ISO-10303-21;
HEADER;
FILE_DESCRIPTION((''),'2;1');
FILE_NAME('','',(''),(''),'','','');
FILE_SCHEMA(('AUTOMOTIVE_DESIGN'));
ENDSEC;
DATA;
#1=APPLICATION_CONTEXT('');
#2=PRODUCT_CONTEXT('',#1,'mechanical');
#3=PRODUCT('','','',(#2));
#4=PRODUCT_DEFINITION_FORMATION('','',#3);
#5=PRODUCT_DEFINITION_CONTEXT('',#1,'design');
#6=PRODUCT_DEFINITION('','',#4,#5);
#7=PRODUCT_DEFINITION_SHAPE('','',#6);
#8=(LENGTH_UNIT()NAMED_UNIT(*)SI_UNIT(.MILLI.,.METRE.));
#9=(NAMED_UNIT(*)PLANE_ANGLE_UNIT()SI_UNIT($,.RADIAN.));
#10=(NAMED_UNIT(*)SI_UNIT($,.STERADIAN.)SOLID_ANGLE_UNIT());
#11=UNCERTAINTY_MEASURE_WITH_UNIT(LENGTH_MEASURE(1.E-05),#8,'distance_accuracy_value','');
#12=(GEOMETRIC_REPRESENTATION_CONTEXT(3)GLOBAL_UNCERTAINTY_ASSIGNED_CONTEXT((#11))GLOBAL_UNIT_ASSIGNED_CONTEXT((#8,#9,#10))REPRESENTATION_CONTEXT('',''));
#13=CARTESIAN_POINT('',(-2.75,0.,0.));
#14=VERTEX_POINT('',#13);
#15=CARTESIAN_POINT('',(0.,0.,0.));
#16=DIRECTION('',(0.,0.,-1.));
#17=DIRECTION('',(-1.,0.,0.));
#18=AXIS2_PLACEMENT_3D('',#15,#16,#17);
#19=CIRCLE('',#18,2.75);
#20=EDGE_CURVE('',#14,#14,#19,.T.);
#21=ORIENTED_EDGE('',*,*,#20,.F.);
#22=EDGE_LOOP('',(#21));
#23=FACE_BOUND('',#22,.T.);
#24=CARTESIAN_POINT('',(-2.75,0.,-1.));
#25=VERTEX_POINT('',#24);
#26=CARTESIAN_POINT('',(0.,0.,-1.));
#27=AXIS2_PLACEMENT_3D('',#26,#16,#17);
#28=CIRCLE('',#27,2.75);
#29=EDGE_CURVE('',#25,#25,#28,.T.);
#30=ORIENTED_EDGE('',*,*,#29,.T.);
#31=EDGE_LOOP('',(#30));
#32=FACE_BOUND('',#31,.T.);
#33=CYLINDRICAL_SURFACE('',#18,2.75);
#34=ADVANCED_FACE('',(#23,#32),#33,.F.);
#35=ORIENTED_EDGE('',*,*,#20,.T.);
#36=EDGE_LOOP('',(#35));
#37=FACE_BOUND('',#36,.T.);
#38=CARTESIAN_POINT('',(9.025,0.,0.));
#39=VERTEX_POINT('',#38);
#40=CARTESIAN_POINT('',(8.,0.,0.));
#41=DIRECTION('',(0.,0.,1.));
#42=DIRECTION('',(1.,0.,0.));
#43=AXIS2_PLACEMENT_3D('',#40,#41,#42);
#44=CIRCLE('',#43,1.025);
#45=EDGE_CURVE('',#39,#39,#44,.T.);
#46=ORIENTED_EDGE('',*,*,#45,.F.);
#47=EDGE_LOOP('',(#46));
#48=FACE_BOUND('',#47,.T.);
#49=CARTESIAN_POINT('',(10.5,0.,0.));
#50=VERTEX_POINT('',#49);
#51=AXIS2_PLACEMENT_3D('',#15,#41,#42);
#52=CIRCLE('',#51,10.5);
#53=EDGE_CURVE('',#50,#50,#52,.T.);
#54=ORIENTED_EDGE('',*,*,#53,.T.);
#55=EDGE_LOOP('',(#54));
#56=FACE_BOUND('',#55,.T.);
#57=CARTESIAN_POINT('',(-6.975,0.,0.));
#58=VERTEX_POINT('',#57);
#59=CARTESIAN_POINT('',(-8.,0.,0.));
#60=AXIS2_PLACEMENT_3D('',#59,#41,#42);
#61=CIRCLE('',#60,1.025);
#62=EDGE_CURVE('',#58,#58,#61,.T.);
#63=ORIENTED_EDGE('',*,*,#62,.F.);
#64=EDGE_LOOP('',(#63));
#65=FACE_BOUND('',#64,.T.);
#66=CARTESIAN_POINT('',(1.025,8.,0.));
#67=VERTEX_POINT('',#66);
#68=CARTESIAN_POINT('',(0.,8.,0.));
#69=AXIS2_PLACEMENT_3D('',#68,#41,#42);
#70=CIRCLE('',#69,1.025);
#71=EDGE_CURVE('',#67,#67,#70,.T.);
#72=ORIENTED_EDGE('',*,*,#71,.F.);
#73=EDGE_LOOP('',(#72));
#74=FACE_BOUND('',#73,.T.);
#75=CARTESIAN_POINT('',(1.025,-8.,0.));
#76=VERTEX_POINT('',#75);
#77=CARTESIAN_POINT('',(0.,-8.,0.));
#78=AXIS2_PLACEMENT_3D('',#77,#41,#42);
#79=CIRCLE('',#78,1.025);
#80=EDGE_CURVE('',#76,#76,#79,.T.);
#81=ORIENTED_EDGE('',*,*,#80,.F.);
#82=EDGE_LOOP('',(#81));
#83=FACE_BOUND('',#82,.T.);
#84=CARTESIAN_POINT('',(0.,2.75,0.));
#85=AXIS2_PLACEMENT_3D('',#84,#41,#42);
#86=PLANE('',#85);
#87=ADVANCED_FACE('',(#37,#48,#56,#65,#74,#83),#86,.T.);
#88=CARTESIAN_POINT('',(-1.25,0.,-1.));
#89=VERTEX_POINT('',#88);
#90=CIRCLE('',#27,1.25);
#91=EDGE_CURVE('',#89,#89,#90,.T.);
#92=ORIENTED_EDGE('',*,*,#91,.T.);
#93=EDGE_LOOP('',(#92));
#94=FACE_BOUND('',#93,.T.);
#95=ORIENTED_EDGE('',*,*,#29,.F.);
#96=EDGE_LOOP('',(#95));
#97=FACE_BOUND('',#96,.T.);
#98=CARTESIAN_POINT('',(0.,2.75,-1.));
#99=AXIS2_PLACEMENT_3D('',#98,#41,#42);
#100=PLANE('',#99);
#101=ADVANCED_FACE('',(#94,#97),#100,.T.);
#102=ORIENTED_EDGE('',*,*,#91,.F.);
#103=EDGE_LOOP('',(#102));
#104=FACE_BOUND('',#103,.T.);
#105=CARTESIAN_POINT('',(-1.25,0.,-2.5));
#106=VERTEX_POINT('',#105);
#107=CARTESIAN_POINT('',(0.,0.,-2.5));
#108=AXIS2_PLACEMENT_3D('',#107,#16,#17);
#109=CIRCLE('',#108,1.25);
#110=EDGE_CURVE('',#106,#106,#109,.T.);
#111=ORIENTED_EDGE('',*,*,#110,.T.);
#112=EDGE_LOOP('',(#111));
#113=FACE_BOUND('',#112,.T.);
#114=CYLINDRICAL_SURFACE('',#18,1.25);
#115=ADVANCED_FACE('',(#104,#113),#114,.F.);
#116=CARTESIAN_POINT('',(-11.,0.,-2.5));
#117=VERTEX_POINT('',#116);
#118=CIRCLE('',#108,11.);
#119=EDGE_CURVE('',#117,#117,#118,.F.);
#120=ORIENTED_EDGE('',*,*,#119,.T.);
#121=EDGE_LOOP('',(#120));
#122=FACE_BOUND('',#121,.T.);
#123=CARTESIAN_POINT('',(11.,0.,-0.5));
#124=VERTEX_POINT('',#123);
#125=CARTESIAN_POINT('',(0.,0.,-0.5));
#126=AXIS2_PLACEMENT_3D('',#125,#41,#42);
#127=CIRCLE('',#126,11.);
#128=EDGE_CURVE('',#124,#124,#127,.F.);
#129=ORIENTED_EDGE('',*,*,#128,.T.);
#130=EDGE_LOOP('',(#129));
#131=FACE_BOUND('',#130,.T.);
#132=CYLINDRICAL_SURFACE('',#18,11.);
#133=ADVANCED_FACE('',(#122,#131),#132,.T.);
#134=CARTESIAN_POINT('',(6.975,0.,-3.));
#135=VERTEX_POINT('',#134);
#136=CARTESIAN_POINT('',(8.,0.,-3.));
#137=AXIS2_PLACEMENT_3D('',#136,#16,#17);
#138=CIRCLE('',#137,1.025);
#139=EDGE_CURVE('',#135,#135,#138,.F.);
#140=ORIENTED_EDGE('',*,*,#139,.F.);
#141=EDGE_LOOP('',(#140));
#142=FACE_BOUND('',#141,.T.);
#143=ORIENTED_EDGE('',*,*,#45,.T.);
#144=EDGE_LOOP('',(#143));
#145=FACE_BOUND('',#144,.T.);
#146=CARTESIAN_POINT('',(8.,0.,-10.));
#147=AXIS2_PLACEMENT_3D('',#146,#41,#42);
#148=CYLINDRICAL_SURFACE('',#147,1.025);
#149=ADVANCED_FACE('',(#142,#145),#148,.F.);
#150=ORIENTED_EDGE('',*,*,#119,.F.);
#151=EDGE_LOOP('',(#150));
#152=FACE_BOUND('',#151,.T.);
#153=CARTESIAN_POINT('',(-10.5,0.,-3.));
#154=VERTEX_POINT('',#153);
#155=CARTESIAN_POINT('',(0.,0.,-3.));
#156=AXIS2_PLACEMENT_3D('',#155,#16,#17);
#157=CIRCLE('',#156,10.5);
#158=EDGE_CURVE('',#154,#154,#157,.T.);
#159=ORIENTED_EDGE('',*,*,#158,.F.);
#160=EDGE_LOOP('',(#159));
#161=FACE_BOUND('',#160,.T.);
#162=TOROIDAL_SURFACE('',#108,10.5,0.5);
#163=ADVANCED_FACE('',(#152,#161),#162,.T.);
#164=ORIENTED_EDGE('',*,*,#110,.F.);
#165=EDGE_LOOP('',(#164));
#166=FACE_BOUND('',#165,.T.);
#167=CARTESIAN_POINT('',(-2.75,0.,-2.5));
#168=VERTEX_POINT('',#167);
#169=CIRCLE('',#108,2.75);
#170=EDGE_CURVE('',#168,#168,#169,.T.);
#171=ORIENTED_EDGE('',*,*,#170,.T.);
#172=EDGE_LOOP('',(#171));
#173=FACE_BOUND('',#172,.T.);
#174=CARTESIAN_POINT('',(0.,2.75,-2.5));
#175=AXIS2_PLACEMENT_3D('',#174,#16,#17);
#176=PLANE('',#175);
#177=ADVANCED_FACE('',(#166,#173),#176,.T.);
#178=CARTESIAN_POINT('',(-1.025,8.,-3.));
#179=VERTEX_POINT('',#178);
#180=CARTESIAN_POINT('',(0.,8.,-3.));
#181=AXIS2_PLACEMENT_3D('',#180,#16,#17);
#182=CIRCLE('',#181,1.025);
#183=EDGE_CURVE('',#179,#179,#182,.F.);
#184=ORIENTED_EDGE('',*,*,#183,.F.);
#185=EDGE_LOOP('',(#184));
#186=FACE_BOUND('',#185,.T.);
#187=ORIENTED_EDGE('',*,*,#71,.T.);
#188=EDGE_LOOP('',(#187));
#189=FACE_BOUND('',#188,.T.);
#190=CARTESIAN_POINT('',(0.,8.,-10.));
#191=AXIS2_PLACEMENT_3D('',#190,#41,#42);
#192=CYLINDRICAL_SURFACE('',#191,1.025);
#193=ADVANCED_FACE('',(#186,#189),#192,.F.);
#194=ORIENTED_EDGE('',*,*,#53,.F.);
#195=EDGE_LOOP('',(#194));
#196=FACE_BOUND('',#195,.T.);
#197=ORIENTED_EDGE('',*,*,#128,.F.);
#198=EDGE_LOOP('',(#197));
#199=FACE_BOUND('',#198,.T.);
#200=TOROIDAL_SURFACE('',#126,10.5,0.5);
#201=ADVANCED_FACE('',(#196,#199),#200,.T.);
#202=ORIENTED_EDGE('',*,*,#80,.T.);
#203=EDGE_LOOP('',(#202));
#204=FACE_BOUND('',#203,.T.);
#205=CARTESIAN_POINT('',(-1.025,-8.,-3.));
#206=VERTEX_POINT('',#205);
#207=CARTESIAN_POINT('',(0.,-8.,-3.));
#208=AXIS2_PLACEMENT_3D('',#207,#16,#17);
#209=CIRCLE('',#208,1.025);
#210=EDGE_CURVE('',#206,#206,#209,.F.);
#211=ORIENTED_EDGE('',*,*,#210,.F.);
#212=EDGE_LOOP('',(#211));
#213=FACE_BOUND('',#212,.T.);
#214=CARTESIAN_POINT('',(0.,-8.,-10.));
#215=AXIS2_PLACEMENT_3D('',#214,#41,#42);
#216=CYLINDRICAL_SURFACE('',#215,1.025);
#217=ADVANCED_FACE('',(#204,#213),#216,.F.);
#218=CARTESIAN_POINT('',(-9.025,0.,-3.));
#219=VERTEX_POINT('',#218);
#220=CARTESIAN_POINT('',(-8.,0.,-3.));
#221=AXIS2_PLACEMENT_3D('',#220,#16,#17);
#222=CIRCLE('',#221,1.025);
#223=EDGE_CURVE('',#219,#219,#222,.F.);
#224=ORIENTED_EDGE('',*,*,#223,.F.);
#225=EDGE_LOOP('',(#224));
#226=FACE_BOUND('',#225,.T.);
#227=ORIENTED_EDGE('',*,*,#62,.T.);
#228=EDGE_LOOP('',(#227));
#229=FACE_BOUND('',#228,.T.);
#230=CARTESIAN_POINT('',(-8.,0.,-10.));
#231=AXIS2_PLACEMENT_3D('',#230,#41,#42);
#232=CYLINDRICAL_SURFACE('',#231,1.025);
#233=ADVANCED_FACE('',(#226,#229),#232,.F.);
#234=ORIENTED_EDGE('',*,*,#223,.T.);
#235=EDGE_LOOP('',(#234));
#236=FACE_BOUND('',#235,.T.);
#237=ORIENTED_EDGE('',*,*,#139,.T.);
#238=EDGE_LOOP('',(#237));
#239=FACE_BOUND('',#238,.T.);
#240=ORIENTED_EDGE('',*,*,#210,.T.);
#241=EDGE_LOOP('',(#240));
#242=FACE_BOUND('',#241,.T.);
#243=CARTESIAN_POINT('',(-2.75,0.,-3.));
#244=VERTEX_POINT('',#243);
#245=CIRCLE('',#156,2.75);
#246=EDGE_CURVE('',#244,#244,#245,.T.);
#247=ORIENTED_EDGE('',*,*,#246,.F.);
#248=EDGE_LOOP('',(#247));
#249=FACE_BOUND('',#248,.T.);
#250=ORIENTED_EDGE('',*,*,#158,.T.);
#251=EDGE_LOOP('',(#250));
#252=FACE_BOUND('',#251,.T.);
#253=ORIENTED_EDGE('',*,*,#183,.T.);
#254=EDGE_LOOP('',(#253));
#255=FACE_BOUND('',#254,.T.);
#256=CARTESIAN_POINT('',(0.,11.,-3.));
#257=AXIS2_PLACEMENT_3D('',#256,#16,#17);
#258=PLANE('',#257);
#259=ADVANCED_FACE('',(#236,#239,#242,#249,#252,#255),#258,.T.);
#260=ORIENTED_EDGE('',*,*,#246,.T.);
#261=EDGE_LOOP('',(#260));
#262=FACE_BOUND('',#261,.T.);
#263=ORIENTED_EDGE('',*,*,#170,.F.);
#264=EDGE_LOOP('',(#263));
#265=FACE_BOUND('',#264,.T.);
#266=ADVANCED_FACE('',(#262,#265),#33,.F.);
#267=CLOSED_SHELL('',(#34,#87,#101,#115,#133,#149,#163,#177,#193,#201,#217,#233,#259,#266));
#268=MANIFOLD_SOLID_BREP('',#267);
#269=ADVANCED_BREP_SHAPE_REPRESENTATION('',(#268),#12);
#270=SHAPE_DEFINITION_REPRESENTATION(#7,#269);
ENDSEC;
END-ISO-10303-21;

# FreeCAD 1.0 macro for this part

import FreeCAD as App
import Part
import Sketcher

V = App.Vector
Q = App.Units.Quantity


def edges_at(feature, points):
    """Names of the edges that pass closest to the given points."""
    edges = feature.Shape.Edges
    near = lambda p: min(range(len(edges)), key=lambda i: edges[i].distToShape(Part.Vertex(*p))[0])
    return sorted({f"Edge{near(p) + 1}" for p in points})


def add_polygon(sketch, points):
    """Adds a closed chain of lines whose ends are joined by coincident constraints."""
    first, n = sketch.GeometryCount, len(points)
    for a, b in zip(points, points[1:] + points[:1]):
        sketch.addGeometry(Part.LineSegment(App.Vector(*a, 0), App.Vector(*b, 0)), False)
    for i in range(n):
        sketch.addConstraint(Sketcher.Constraint("Coincident", first + i, 2, first + (i + 1) % n, 1))

doc = App.newDocument("Part")
body = doc.addObject("PartDesign::Body", "Body")

sketch1 = body.newObject("Sketcher::SketchObject", "Sketch")
sketch1.AttachmentSupport = (doc.getObject("YZ_Plane"), [""])
sketch1.MapMode = "FlatFace"
add_polygon(sketch1, [(1.2, -1), (1.2, -2.5), (2.8, -2.5), (2.8, -3), (11, -3), (11, 0), (2.8, 0), (2.8, -1)])
sketch1.addConstraint([
    Sketcher.Constraint("Vertical", 0),
    Sketcher.Constraint("Horizontal", 1),
    Sketcher.Constraint("Vertical", 2),
    Sketcher.Constraint("Horizontal", 3),
    Sketcher.Constraint("Vertical", 4),
    Sketcher.Constraint("Horizontal", 5),
    Sketcher.Constraint("Vertical", 6),
    Sketcher.Constraint("Horizontal", 7),
    Sketcher.Constraint("PointOnObject", 4, 2, -1),
    Sketcher.Constraint("Vertical", 2, 2, 5, 2),
    Sketcher.Constraint("Equal", 7, 0),
    Sketcher.Constraint("DistanceY", 4, 1, 4, 2, 3.0),
    Sketcher.Constraint("DistanceY", 6, 2, 6, 1, 1.0),
    Sketcher.Constraint("DistanceX", 1, 1, 1, 2, 1.5),
    Sketcher.Constraint("DistanceX", -1, 1, 3, 2, 11.0),
    Sketcher.Constraint("DistanceX", 3, 1, 3, 2, 8.25),
])
revolution = body.newObject("PartDesign::Revolution", "Revolution")
revolution.Profile = sketch1
revolution.ReferenceAxis = (sketch1, ["V_Axis"])
revolution.Angle = 360

sketch2 = body.newObject("Sketcher::SketchObject", "Sketch001")
sketch2.AttachmentSupport = (doc.getObject("YZ_Plane"), [""])
sketch2.MapMode = "FlatFace"
add_polygon(sketch2, [(8, -3), (8, 0), (6.97, 0), (7.2, -0.13), (7.2, -2.87), (6.97, -3)])
sketch2.addGeometry(Part.LineSegment(V(8, 0, 0), V(8, -3, 0)), True)
sketch2.addConstraint([
    Sketcher.Constraint("Vertical", 0),
    Sketcher.Constraint("Horizontal", 1),
    Sketcher.Constraint("Vertical", 3),
    Sketcher.Constraint("Horizontal", 5),
    Sketcher.Constraint("Vertical", 6),
    Sketcher.Constraint("Coincident", 6, 1, 0, 2),
    Sketcher.Constraint("PointOnObject", 0, 2, -1),
    Sketcher.Constraint("Horizontal", 4, 2, 6, 2),
    Sketcher.Constraint("Vertical", 1, 2, 4, 2),
    Sketcher.Constraint("Equal", 2, 4),
    Sketcher.Constraint("DistanceY", 0, 1, 0, 2, 3.0),
    Sketcher.Constraint("Angle", 2, Q("-30 deg")),
    Sketcher.Constraint("DistanceX", -1, 1, 0, 2, 8.0),
    Sketcher.Constraint("DistanceX", -1, 1, 2, 2, 7.2),
    Sketcher.Constraint("DistanceX", 1, 2, 1, 1, 1.025),
])
groove = body.newObject("PartDesign::Groove", "Groove")
groove.Profile = sketch2
groove.ReferenceAxis = (sketch2, ["Axis0"])
groove.Angle = 360
doc.recompute()

datumline = body.newObject("PartDesign::Line", "DatumLine")
datumline.Placement = App.Placement(V(0, 0, 0), App.Rotation(V(0, 0, 1), V(0.707106781, -0.707106781, 0)))
linearpattern = body.newObject("PartDesign::LinearPattern", "LinearPattern")
linearpattern.Originals = [groove]
linearpattern.Direction = (datumline, [""])
linearpattern.Mode = "offset"
linearpattern.Offset = 11.313708
linearpattern.Occurrences = 2
body.Tip = linearpattern
doc.recompute()

linearpattern2 = body.newObject("PartDesign::LinearPattern", "LinearPattern001")
linearpattern2.Originals = [groove]
linearpattern2.Direction = (doc.getObject("Y_Axis"), [""])
linearpattern2.Mode = "offset"
linearpattern2.Offset = 16
linearpattern2.Occurrences = 2
linearpattern2.Reversed = True
body.Tip = linearpattern2
doc.recompute()

datumline2 = body.newObject("PartDesign::Line", "DatumLine001")
datumline2.Placement = App.Placement(V(0, 0, 0), App.Rotation(V(0, 0, 1), V(-0.707106781, -0.707106781, 0)))
linearpattern3 = body.newObject("PartDesign::LinearPattern", "LinearPattern002")
linearpattern3.Originals = [groove]
linearpattern3.Direction = (datumline2, [""])
linearpattern3.Mode = "offset"
linearpattern3.Offset = 11.313708
linearpattern3.Occurrences = 2
body.Tip = linearpattern3
doc.recompute()

linearpattern4 = body.newObject("PartDesign::LinearPattern", "LinearPattern003")
linearpattern4.Originals = [groove]
linearpattern4.Direction = (doc.getObject("Y_Axis"), [""])
linearpattern4.Mode = "offset"
linearpattern4.Offset = 8
linearpattern4.Occurrences = 2
linearpattern4.Reversed = True
body.Tip = linearpattern4
doc.recompute()

fillet = body.newObject("PartDesign::Fillet", "Fillet")
fillet.Base = (linearpattern4, edges_at(linearpattern4, [(0, -11, -3), (0, -11, 0)]))
fillet.Radius = 0.5

sketch3 = body.newObject("Sketcher::SketchObject", "Sketch002")
sketch3.AttachmentSupport = (doc.getObject("XY_Plane"), [""])
sketch3.MapMode = "FlatFace"
sketch3.addGeometry([
    Part.Circle(V(0, 8, 0), V(0, 0, 1), 1),
    Part.Circle(V(-8, 0, 0), V(0, 0, 1), 1),
    Part.Circle(V(8, 0, 0), V(0, 0, 1), 1),
    Part.Circle(V(0, -8, 0), V(0, 0, 1), 1),
], False)
sketch3.addConstraint([
    Sketcher.Constraint("Equal", 0, 1),
    Sketcher.Constraint("Equal", 1, 2),
    Sketcher.Constraint("Equal", 2, 3),
    Sketcher.Constraint("Symmetric", 1, 3, 2, 3, -1, 1),
    Sketcher.Constraint("Symmetric", 0, 3, 3, 3, -1, 1),
    Sketcher.Constraint("PointOnObject", 0, 3, -2),
    Sketcher.Constraint("PointOnObject", 1, 3, -1),
    Sketcher.Constraint("Diameter", 0, 2.05),
    Sketcher.Constraint("DistanceY", -1, 1, 0, 3, 8.0),
    Sketcher.Constraint("DistanceX", 1, 3, -1, 1, 8.0),
])
pocket1 = body.newObject("PartDesign::Pocket", "Pocket")
pocket1.Profile = sketch3
pocket1.Length = 10

doc.recompute()
